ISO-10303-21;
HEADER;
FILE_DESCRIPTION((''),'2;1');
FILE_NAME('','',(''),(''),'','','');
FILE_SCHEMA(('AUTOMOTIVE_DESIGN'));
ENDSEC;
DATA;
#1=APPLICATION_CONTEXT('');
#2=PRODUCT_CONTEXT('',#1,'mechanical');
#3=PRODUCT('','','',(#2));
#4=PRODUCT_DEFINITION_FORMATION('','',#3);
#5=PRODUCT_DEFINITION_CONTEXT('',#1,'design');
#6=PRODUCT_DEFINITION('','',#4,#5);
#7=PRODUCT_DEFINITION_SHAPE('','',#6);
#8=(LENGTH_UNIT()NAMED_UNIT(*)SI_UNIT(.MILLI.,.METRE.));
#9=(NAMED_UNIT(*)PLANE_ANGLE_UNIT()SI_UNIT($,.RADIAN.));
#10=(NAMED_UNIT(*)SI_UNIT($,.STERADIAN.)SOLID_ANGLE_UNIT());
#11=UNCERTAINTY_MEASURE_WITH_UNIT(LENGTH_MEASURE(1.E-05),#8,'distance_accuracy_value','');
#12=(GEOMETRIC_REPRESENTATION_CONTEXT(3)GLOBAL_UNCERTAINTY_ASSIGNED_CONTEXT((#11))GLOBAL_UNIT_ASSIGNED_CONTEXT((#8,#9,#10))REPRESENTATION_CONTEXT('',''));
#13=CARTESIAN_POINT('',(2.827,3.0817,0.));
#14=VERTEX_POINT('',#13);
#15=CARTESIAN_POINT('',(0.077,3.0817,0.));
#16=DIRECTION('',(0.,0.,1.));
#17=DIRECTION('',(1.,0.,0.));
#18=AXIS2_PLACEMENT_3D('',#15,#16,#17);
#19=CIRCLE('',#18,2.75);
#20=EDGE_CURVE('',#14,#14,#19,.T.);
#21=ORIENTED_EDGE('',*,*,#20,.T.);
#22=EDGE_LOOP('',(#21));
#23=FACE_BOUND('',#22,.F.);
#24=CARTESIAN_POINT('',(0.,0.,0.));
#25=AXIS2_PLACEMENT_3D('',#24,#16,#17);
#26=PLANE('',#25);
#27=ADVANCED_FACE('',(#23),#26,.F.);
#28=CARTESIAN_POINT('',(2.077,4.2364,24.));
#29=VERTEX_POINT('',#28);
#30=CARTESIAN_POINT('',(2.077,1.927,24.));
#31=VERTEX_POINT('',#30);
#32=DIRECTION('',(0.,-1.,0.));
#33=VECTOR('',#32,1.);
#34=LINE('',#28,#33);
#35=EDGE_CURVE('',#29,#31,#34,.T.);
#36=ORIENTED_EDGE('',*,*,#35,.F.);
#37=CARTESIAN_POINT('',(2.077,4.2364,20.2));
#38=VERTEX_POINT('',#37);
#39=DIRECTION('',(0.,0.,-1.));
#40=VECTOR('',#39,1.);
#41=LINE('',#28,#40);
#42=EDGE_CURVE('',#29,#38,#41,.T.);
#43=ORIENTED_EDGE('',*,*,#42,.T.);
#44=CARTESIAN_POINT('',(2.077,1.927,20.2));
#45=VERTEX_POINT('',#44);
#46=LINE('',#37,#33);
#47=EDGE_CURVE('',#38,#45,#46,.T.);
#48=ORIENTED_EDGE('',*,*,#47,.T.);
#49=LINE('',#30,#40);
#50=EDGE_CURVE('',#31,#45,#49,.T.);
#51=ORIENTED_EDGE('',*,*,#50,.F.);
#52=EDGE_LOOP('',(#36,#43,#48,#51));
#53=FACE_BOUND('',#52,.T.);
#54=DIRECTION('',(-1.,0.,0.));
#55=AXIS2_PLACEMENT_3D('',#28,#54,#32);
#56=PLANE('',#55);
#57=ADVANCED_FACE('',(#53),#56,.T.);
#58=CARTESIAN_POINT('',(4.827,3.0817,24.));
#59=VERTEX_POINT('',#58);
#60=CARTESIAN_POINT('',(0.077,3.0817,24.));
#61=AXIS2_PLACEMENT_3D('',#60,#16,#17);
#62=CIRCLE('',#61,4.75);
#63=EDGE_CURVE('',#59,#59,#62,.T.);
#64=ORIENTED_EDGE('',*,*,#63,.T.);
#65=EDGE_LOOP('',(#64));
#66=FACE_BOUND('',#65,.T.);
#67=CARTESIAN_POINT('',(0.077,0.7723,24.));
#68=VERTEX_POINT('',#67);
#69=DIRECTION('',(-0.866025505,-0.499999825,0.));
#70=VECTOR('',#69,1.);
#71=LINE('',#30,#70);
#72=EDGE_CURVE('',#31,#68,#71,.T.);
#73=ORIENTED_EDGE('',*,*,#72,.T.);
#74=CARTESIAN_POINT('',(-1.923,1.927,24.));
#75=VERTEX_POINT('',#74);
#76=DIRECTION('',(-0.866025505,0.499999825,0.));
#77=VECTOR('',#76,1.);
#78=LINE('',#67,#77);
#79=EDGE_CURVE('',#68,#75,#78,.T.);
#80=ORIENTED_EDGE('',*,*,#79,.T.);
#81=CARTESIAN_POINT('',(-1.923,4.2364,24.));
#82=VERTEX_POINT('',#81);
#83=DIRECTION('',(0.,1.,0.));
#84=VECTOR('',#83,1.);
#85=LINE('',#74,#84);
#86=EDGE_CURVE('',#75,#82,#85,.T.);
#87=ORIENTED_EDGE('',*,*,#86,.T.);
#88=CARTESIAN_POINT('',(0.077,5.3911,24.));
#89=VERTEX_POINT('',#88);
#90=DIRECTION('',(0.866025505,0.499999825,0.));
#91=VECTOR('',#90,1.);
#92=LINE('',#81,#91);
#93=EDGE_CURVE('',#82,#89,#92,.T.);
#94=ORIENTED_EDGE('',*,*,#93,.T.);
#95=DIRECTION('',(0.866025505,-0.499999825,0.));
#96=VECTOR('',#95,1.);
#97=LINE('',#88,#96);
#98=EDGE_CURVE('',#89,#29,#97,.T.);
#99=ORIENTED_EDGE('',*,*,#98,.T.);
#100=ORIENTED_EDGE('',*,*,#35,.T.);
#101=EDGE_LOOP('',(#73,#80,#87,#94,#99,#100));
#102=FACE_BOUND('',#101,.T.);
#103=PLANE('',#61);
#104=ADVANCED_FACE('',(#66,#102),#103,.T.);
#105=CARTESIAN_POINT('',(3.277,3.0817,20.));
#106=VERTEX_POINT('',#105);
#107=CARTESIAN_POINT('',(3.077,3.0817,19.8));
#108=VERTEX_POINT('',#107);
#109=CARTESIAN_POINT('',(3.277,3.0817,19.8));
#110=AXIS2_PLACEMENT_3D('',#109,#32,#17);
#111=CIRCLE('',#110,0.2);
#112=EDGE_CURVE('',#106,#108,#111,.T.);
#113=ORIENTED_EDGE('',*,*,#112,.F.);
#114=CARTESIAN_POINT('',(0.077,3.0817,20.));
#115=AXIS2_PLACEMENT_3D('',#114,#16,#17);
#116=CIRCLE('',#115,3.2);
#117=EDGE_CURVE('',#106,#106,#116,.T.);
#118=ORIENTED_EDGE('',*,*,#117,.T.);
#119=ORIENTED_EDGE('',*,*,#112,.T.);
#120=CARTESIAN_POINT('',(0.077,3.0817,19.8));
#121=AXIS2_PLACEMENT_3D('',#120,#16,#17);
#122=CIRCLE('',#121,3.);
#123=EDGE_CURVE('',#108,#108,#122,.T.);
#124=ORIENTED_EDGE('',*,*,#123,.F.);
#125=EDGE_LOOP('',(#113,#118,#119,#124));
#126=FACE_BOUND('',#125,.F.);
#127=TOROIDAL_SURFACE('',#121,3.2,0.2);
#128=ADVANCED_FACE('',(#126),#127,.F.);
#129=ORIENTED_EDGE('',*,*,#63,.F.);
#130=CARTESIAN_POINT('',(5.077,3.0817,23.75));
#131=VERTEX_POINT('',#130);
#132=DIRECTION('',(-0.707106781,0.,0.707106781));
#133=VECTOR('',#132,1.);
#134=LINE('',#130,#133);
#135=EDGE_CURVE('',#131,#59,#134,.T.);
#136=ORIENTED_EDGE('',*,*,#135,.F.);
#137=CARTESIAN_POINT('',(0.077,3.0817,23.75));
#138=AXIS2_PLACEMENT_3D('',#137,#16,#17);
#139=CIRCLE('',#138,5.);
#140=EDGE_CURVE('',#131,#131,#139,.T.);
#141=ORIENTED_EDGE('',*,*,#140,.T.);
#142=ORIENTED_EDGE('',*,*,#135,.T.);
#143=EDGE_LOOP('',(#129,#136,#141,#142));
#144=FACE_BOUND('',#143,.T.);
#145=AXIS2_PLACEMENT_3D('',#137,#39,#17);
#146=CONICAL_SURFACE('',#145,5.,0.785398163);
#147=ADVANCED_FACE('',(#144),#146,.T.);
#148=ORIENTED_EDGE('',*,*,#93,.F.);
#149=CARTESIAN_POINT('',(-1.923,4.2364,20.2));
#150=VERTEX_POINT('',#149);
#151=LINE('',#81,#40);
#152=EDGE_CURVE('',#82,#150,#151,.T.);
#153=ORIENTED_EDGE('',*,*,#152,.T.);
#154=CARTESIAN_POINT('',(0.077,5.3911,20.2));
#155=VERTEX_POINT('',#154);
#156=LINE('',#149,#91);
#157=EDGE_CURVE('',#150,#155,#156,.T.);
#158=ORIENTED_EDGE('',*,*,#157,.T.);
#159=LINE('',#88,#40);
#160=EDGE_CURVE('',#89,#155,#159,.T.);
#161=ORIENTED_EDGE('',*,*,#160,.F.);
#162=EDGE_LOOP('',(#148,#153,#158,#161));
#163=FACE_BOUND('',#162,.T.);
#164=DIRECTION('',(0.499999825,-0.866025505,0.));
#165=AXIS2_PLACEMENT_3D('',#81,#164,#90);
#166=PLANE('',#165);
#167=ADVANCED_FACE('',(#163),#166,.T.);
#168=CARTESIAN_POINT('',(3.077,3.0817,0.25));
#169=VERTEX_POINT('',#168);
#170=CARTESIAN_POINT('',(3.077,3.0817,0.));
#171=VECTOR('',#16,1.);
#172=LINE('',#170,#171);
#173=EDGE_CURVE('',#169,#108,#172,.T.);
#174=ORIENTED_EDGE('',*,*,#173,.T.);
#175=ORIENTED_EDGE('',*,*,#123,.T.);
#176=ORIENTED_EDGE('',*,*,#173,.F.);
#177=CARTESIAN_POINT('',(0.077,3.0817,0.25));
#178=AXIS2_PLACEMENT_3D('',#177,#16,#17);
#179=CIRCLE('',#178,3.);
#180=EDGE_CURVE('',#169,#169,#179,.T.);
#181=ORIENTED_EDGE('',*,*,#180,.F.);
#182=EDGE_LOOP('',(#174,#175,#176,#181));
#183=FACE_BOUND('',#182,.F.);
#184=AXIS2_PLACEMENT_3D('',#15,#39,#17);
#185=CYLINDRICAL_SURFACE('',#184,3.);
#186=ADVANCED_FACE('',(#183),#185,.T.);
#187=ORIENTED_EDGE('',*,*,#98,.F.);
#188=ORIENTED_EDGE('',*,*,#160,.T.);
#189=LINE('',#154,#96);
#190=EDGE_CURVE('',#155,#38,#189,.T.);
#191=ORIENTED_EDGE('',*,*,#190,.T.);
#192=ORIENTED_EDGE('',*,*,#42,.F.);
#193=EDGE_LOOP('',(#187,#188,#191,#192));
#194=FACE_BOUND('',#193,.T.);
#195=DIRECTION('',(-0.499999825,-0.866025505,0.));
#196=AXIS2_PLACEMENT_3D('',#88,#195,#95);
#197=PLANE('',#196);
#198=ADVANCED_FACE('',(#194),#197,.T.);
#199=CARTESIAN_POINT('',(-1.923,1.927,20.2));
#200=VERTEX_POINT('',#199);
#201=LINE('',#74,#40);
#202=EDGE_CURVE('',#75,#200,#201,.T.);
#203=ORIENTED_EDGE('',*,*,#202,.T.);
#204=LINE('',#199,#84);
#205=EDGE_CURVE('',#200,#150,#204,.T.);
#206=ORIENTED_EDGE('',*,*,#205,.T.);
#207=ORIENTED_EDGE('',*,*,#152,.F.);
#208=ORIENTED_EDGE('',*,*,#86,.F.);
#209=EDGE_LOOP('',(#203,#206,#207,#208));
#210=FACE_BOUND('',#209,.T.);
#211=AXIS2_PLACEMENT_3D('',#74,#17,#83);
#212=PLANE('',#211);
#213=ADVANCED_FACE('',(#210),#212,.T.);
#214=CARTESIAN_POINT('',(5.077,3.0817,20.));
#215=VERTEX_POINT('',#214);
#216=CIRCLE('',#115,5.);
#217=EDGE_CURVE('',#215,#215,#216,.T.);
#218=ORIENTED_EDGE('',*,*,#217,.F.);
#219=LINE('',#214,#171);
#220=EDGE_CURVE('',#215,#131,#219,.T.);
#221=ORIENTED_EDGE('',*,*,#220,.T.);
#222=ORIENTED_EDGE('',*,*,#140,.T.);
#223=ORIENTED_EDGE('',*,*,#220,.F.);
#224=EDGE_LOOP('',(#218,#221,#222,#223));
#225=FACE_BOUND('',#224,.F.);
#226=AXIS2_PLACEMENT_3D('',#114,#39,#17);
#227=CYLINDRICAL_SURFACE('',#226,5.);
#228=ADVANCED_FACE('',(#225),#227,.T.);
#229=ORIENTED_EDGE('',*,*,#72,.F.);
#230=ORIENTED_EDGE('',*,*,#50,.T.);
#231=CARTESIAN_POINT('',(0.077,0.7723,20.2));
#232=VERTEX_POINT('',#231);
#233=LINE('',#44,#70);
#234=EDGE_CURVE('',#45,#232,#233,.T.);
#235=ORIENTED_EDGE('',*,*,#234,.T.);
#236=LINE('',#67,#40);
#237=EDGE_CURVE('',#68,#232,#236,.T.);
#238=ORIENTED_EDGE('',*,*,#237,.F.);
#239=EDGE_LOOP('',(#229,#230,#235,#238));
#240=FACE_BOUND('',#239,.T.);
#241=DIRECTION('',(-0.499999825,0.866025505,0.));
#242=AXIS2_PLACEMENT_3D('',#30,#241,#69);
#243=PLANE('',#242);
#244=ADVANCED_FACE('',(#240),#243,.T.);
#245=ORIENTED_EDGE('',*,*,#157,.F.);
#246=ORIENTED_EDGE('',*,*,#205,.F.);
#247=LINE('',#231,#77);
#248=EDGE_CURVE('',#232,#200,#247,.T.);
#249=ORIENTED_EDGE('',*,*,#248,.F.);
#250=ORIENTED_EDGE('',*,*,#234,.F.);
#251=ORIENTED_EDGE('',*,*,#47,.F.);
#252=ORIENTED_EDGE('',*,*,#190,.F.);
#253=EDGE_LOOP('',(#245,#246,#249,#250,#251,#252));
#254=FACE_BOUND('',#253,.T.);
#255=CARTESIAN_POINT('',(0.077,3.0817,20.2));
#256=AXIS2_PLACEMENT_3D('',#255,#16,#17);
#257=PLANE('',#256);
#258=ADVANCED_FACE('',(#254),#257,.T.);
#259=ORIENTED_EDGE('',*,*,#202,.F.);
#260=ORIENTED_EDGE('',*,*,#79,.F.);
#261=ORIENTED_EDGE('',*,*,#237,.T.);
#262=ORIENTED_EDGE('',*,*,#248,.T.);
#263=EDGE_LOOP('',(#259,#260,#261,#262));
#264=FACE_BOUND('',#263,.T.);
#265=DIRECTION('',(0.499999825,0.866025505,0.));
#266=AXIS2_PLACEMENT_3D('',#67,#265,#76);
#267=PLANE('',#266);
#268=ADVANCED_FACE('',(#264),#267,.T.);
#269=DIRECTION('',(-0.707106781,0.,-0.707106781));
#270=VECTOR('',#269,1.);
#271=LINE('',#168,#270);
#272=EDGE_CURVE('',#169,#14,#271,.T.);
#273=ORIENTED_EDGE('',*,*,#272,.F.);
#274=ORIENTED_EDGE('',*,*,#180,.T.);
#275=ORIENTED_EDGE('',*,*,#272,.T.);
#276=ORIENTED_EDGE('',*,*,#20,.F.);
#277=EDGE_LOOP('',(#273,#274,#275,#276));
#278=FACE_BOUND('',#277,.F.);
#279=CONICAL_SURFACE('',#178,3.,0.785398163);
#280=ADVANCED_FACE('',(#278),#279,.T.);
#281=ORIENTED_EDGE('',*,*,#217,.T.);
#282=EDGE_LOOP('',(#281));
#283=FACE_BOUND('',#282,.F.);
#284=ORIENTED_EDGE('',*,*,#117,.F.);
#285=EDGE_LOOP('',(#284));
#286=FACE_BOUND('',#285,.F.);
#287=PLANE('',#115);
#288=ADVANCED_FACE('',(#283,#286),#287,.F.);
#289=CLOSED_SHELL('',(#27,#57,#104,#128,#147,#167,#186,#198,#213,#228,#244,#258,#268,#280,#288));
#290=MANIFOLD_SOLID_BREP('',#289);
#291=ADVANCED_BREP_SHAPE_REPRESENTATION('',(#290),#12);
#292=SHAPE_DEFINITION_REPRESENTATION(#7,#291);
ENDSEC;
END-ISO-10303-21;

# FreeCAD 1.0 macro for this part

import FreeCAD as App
import Part
import Sketcher
from FreeCAD import Vector
Q = App.Units.Quantity


def edges_at(feature, points):
    """Names of the edges that pass closest to the given points."""
    edges = feature.Shape.Edges
    near = lambda p: min(range(len(edges)), key=lambda i: edges[i].distToShape(Part.Vertex(*p))[0])
    return sorted({f"Edge{near(p) + 1}" for p in points})


def add_polygon(sketch, points):
    """Adds a closed chain of lines whose ends are joined by coincident constraints."""
    first, n = sketch.GeometryCount, len(points)
    for a, b in zip(points, points[1:] + points[:1]):
        sketch.addGeometry(Part.LineSegment(App.Vector(*a, 0), App.Vector(*b, 0)), False)
    for i in range(n):
        sketch.addConstraint(Sketcher.Constraint("Coincident", first + i, 2, first + (i + 1) % n, 1))

doc = App.newDocument("Part")
body = doc.addObject("PartDesign::Body", "Body")

# Sketch on XY plane
sketch1 = body.newObject("Sketcher::SketchObject", "Sketch")
sketch1.AttachmentSupport = (doc.getObject("XY_Plane"), [""])
sketch1.MapMode = "FlatFace"
sketch1.addGeometry(Part.Circle(Vector(0.077, 3.0817, 0), Vector(0, 0, 1), 3), False)
sketch1.addConstraint(Sketcher.Constraint("Diameter", 0, Q("6 mm")))
sketch1.addConstraint(Sketcher.Constraint("DistanceX", -1, 1, 0, 3, Q("0.077 mm")))
sketch1.addConstraint(Sketcher.Constraint("DistanceY", -1, 1, 0, 3, Q("3.0817 mm")))
pad1 = body.newObject("PartDesign::Pad", "Pad")
pad1.Profile = sketch1
pad1.Length = 20

# Sketch on XY plane
sketch2 = body.newObject("Sketcher::SketchObject", "Sketch001")
sketch2.AttachmentSupport = (doc.getObject("XY_Plane"), [""])
sketch2.MapMode = "FlatFace"
sketch2.AttachmentOffset = App.Placement(Vector(0, 0, 20), App.Rotation())
sketch2.addGeometry(Part.Circle(Vector(0.077, 3.0817, 0), Vector(0, 0, 1), 5), False)
sketch2.addConstraint(Sketcher.Constraint("Diameter", 0, Q("10 mm")))
sketch2.addConstraint(Sketcher.Constraint("DistanceX", -1, 1, 0, 3, Q("0.077 mm")))
sketch2.addConstraint(Sketcher.Constraint("DistanceY", -1, 1, 0, 3, Q("3.0817 mm")))
pad2 = body.newObject("PartDesign::Pad", "Pad001")
pad2.Profile = sketch2
pad2.Length = 4

# Sketch on XY plane
sketch3 = body.newObject("Sketcher::SketchObject", "Sketch002")
sketch3.AttachmentSupport = (doc.getObject("XY_Plane"), [""])
sketch3.MapMode = "FlatFace"
sketch3.AttachmentOffset = App.Placement(Vector(0, 0, 24), App.Rotation())
add_polygon(sketch3, [(-1.923, 1.927), (0.077, 0.7723), (2.077, 1.927), (2.077, 4.2364), (0.077, 5.3911), (-1.923, 4.2364)])  # lines 0-5
sketch3.addConstraint(Sketcher.Constraint("Vertical", 2))
sketch3.addConstraint(Sketcher.Constraint("Vertical", 5))
sketch3.addConstraint(Sketcher.Constraint("Parallel", 0, 3))
sketch3.addConstraint(Sketcher.Constraint("Parallel", 1, 4))
sketch3.addConstraint(Sketcher.Constraint("Horizontal", 2, 2, 4, 2))
sketch3.addConstraint(Sketcher.Constraint("Horizontal", 1, 2, 5, 2))
sketch3.addConstraint(Sketcher.Constraint("Vertical", 0, 2, 3, 2))
sketch3.addConstraint(Sketcher.Constraint("DistanceX", 4, 2, 2, 2, Q("4 mm")))
sketch3.addConstraint(Sketcher.Constraint("Angle", 0, Q("-30 deg")))
sketch3.addConstraint(Sketcher.Constraint("DistanceY", 2, 1, 2, 2, Q("2.3094 mm")))
sketch3.addConstraint(Sketcher.Constraint("DistanceX", -1, 1, 0, 2, Q("0.077 mm")))
sketch3.addConstraint(Sketcher.Constraint("DistanceY", -1, 1, 1, 2, Q("1.927 mm")))
pocket1 = body.newObject("PartDesign::Pocket", "Pocket")
pocket1.Profile = sketch3
pocket1.Length = 3.8
doc.recompute()

fillet = body.newObject("PartDesign::Fillet", "Fillet")
fillet.Base = (pocket1, edges_at(pocket1, [(-2.923, 3.082, 20)]))
fillet.Radius = 0.2
doc.recompute()

chamfer = body.newObject("PartDesign::Chamfer", "Chamfer")
chamfer.Base = (fillet, edges_at(fillet, [(-4.923, 3.082, 24), (-2.923, 3.082, 0)]))
chamfer.Size = 0.25

doc.recompute()
